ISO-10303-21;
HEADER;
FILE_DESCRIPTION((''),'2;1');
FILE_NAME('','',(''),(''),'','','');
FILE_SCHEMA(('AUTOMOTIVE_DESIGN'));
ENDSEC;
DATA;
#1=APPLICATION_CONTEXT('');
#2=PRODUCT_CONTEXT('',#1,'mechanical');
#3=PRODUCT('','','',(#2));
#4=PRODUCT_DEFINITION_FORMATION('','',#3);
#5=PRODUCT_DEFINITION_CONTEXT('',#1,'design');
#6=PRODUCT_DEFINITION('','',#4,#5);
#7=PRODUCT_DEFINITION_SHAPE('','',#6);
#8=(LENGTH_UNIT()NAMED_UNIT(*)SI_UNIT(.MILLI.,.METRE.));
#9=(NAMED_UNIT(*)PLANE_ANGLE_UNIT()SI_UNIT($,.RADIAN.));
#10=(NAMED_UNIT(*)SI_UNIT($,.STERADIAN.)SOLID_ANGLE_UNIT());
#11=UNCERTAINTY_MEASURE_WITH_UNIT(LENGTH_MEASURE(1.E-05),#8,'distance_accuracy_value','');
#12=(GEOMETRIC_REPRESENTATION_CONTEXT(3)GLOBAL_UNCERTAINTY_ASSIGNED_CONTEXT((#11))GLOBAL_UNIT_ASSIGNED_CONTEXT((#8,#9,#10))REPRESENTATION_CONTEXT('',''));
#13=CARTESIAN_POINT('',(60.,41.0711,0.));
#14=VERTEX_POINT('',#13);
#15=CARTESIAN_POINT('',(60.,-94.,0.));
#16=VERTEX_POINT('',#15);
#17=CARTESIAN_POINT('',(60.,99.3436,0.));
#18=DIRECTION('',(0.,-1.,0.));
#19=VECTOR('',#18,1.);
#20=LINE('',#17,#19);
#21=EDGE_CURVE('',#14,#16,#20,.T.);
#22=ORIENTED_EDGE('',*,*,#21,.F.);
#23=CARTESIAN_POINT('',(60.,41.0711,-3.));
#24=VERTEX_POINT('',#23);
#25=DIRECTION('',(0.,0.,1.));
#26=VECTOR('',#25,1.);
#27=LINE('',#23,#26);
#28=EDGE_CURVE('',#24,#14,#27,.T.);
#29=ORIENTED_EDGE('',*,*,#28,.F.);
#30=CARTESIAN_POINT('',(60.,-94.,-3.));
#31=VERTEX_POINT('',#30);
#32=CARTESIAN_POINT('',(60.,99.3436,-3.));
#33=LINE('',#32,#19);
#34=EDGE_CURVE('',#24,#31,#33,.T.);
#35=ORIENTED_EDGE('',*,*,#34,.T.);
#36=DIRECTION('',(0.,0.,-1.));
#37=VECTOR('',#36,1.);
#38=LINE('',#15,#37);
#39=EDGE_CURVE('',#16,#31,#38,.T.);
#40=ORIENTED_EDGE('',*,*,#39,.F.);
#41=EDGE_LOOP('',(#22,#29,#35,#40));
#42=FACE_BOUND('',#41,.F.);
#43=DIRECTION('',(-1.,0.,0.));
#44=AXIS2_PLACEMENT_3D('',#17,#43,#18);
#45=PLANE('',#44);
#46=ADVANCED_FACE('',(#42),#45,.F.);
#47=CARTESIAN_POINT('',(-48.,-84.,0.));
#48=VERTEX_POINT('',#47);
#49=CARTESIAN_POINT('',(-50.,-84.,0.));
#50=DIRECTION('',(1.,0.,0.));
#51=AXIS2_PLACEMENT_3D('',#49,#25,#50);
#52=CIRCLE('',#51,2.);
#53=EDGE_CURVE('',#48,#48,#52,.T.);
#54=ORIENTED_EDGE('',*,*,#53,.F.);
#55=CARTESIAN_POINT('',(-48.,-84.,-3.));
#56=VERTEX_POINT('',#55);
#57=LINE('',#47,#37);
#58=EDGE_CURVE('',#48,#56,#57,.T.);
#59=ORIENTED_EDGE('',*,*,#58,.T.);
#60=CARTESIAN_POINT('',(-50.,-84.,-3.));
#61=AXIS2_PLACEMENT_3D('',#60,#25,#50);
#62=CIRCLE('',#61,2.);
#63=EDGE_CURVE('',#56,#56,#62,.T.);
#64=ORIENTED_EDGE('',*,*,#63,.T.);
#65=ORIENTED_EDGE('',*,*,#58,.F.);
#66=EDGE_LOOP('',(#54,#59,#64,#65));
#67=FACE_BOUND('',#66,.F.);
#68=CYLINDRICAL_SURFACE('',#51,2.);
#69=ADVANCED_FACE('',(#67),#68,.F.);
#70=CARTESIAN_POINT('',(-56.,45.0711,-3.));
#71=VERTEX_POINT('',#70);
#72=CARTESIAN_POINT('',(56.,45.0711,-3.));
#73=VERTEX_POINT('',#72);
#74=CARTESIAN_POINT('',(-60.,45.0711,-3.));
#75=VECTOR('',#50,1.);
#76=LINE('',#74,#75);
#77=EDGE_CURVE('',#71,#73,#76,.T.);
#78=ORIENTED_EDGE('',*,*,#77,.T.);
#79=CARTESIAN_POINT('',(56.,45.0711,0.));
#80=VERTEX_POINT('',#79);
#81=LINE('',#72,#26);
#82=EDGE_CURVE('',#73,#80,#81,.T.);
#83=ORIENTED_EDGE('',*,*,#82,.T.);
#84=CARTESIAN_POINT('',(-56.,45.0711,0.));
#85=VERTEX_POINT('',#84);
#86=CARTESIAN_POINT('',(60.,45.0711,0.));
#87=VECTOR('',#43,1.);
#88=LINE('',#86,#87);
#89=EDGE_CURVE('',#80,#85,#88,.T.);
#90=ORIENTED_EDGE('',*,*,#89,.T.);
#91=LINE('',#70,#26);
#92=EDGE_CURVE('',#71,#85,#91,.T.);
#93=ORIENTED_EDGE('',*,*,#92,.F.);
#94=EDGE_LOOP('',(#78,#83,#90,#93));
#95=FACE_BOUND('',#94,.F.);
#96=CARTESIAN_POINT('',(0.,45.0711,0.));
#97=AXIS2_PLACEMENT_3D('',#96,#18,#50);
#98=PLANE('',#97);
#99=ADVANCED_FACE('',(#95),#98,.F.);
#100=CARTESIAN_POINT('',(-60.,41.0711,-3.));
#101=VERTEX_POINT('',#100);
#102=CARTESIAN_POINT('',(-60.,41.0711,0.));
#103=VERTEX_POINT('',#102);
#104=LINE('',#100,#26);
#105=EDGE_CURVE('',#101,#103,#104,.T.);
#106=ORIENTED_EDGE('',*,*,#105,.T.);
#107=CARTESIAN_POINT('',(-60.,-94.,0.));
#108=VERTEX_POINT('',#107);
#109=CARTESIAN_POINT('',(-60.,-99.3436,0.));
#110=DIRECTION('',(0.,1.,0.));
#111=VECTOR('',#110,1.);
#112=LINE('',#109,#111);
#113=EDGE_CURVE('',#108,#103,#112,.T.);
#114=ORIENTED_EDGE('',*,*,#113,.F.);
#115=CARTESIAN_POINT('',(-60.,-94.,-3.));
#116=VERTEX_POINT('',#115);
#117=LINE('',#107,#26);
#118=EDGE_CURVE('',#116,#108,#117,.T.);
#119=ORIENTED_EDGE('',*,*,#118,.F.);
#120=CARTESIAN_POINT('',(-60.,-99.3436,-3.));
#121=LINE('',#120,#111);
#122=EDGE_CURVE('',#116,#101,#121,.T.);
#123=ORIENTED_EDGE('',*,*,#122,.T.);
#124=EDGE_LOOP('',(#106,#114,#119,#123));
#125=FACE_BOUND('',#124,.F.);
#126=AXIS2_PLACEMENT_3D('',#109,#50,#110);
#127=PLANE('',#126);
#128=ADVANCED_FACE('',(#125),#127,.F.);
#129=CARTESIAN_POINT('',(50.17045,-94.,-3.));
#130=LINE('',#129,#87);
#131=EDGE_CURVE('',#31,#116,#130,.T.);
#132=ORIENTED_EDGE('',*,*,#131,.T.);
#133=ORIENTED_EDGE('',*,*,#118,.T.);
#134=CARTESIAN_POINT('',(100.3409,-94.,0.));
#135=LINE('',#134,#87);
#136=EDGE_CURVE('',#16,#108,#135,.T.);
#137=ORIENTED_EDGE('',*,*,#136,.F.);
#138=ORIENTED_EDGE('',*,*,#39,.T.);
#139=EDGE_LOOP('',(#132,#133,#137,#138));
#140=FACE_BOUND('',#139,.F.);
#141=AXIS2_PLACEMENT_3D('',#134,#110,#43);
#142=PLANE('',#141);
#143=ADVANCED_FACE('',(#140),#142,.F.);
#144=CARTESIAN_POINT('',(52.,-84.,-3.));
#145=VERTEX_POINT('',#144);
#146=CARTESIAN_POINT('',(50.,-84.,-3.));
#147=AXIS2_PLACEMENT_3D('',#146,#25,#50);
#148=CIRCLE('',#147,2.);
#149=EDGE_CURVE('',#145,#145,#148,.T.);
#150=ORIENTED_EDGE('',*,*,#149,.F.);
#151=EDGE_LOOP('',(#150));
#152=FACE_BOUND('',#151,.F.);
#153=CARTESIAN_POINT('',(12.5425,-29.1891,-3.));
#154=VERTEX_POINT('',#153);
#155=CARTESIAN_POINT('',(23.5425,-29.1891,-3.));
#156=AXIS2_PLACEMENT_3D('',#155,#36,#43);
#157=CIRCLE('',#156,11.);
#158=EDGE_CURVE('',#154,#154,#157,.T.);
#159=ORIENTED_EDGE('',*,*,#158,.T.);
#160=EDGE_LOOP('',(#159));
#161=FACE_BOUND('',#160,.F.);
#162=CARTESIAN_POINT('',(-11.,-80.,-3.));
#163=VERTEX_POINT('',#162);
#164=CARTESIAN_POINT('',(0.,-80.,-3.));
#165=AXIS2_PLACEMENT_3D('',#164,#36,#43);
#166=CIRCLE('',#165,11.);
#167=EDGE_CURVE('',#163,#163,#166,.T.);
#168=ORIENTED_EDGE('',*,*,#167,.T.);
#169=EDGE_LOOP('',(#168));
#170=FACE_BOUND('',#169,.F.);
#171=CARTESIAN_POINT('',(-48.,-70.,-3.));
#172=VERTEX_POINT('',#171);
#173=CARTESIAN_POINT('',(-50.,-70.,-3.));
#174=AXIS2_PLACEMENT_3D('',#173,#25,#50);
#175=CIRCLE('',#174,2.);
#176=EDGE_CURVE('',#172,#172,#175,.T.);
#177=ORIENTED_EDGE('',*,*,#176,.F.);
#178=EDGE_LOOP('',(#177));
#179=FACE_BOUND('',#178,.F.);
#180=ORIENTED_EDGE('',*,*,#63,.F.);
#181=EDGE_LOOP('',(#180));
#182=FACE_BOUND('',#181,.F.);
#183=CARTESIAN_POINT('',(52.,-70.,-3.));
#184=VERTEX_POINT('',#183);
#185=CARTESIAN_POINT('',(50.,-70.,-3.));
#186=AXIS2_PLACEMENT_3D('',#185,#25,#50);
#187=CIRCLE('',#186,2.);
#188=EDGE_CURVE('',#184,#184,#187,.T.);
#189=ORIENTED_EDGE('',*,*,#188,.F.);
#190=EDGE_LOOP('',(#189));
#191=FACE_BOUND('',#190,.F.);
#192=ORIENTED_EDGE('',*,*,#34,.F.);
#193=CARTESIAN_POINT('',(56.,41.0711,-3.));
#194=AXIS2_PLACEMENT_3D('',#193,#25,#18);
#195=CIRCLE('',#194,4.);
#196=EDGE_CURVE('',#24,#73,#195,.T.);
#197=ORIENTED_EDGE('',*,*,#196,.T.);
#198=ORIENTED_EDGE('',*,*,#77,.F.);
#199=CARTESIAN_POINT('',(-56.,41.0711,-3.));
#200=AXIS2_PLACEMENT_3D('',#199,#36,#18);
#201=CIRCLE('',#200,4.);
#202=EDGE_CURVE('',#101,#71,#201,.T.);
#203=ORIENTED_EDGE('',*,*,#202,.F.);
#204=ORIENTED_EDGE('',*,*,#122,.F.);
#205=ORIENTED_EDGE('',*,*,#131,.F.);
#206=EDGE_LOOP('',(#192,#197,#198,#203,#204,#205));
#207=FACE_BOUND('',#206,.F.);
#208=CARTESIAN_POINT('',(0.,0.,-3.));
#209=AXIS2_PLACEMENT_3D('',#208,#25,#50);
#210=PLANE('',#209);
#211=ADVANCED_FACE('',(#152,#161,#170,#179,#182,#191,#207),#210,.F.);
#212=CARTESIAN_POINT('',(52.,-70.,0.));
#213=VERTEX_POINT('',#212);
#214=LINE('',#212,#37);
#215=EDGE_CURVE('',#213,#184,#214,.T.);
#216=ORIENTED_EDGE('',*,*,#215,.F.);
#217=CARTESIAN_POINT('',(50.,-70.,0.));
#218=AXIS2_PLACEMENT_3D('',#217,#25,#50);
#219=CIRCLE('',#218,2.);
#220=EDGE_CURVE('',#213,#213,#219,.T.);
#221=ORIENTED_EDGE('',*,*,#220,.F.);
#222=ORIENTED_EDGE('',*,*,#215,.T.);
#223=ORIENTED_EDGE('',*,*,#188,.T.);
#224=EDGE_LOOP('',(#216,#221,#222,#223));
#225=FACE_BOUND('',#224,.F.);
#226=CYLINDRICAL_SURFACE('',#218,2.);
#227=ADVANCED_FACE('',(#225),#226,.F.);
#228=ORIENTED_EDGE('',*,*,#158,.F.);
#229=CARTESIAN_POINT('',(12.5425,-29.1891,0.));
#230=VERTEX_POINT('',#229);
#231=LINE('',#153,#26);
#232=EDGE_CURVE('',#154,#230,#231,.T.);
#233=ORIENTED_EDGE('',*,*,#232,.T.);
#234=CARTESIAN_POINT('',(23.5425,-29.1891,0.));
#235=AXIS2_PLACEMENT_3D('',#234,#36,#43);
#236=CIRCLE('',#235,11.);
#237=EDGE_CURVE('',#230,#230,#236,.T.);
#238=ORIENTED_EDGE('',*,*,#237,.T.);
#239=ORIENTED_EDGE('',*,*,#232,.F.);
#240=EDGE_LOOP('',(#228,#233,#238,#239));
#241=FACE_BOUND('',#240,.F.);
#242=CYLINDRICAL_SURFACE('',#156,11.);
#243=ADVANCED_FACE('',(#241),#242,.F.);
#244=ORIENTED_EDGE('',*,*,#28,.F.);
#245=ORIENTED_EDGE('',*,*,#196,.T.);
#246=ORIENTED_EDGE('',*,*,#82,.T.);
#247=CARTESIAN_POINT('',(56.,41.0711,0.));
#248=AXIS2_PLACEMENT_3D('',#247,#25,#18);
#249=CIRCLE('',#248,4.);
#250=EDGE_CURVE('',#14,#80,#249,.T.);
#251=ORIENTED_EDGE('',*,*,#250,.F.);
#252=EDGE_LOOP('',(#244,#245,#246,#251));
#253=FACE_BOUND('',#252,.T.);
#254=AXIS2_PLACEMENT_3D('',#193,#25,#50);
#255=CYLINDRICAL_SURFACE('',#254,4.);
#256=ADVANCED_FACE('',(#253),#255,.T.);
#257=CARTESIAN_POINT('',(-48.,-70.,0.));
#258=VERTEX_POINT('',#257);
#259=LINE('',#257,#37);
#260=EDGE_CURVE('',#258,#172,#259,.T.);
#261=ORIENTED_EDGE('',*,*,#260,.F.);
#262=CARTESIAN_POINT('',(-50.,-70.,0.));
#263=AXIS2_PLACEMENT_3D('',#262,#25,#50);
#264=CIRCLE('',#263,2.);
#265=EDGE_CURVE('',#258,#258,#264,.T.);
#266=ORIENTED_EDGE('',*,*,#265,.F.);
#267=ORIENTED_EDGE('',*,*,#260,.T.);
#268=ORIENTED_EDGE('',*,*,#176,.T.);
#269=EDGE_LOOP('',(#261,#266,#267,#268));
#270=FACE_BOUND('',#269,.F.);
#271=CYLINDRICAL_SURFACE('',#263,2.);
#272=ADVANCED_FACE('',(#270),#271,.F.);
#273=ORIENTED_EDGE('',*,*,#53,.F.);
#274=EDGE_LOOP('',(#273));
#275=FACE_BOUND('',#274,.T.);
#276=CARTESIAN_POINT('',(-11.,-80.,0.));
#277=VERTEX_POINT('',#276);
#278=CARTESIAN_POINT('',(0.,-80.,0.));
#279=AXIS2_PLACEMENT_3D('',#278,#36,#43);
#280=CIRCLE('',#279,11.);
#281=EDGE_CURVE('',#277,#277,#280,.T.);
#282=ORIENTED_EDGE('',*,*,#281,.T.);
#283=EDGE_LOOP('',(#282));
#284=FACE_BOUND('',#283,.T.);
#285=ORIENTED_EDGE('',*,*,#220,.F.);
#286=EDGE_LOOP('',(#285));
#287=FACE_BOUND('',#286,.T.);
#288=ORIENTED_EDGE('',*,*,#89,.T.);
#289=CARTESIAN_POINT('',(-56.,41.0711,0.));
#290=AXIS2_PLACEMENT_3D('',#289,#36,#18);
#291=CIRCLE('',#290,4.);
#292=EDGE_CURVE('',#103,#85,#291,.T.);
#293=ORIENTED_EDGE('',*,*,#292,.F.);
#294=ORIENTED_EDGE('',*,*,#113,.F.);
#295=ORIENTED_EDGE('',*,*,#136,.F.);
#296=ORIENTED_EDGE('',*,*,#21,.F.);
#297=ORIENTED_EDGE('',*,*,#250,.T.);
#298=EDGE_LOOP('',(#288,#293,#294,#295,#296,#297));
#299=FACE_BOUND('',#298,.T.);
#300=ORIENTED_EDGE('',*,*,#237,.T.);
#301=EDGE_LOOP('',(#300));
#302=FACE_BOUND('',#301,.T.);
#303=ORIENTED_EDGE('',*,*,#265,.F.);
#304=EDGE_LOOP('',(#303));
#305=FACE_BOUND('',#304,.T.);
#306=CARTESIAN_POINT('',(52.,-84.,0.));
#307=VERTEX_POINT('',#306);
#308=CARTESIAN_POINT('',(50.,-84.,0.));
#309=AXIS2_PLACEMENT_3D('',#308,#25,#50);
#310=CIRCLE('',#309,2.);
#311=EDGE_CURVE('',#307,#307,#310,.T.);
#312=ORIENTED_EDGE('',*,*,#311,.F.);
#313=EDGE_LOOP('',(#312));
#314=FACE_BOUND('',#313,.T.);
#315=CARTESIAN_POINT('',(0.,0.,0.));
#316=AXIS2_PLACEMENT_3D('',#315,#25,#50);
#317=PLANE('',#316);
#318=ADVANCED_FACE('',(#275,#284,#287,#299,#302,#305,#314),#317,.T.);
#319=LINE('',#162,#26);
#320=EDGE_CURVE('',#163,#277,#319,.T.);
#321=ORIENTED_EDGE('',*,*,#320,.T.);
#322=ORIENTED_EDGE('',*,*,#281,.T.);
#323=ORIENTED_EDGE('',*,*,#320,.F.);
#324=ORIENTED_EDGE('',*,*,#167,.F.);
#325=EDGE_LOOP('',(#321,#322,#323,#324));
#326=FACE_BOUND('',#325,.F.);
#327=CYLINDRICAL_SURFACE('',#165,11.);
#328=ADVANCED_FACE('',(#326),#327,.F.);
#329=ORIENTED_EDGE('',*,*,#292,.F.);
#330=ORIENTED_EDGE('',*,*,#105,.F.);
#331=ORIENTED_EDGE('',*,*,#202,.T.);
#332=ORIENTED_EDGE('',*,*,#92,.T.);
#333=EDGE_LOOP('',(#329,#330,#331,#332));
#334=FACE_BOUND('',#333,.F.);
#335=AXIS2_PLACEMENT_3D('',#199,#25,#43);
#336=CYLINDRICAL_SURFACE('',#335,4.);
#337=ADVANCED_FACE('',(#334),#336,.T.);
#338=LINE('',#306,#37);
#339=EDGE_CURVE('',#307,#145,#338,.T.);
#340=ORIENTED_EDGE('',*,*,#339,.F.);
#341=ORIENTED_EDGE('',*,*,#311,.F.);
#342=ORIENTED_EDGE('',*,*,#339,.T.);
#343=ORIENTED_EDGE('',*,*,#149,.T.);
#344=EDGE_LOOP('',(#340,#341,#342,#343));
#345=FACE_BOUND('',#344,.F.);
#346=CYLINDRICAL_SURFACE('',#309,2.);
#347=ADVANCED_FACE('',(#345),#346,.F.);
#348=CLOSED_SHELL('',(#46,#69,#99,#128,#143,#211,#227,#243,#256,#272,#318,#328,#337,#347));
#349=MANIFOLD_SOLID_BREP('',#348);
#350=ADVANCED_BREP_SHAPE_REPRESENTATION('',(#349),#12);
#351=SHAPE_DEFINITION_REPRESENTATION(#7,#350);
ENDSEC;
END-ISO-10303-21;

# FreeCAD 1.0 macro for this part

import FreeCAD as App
import Part
import Sketcher
Q = App.Units.Quantity


def edges_at(feature, points):
    """Names of the edges that pass closest to the given points."""
    edges = feature.Shape.Edges
    near = lambda p: min(range(len(edges)), key=lambda i: edges[i].distToShape(Part.Vertex(*p))[0])
    return sorted({f"Edge{near(p) + 1}" for p in points})


def add_polygon(sketch, points):
    """Adds a closed chain of lines whose ends are joined by coincident constraints."""
    first, n = sketch.GeometryCount, len(points)
    for a, b in zip(points, points[1:] + points[:1]):
        sketch.addGeometry(Part.LineSegment(App.Vector(*a, 0), App.Vector(*b, 0)), False)
    for i in range(n):
        sketch.addConstraint(Sketcher.Constraint("Coincident", first + i, 2, first + (i + 1) % n, 1))

doc = App.newDocument("Part")
params = doc.addObject("Spreadsheet::Sheet", "Params")
for row, (alias, value) in enumerate([
    ("sketch1_width", "120 mm"),
    ("pad1_length", "3 mm"),
    ("pocket1_length", "10 mm"),
    ("fillet_radius", "4 mm"),
    ("sketch3_diameter", "8 mm"),
    ("pocket2_length", "10 mm"),
    ("sketch4_width", "366.04 mm"),
    ("pocket3_length", "10 mm"),
    ("sketch5_diameter", "4 mm"),
    ("pocket4_length", "10 mm"),
    ("sketch6_diameter", "22 mm"),
    ("sketch6_diameter2", "8 mm"),
    ("pocket5_length", "10 mm"),
], start=1):
    params.set(f"A{row}", alias)
    params.set(f"B{row}", "=" + value)
    params.setAlias(f"B{row}", alias)

body = doc.addObject("PartDesign::Body", "Body")

sketch1 = body.newObject("Sketcher::SketchObject", "Sketch")
sketch1.AttachmentSupport = (doc.getObject("XY_Plane"), [""])
sketch1.MapMode = "FlatFace"
add_polygon(sketch1, [(-60, -99.3436), (60, -99.3436), (60, 99.3436), (-60, 99.3436)])
sketch1.addConstraint(Sketcher.Constraint("Horizontal", 0))
sketch1.addConstraint(Sketcher.Constraint("Vertical", 1))
sketch1.addConstraint(Sketcher.Constraint("Horizontal", 2))
sketch1.addConstraint(Sketcher.Constraint("Vertical", 3))
sketch1.addConstraint(Sketcher.Constraint("Symmetric", 0, 2, 2, 2, -1, 1))
sketch1.addConstraint(Sketcher.Constraint("DistanceX", 0, 1, 0, 2, Q("120 mm")))
sketch1.addConstraint(Sketcher.Constraint("DistanceY", 1, 1, 1, 2, Q("198.6872 mm")))
sketch1.setExpression("Constraints[9]", "Params.sketch1_width")
pad1 = body.newObject("PartDesign::Pad", "Pad")
pad1.Profile = sketch1
pad1.setExpression("Length", "Params.pad1_length")
pad1.Reversed = True

sketch2 = body.newObject("Sketcher::SketchObject", "Sketch001")
sketch2.AttachmentSupport = (doc.getObject("XY_Plane"), [""])
sketch2.MapMode = "FlatFace"
add_polygon(sketch2, [(-74.3824, 45.0711), (108.1656, 45.0711), (108.1656, 129.4154), (-74.3824, 129.4154)])
sketch2.addConstraint(Sketcher.Constraint("Horizontal", 0))
sketch2.addConstraint(Sketcher.Constraint("Vertical", 1))
sketch2.addConstraint(Sketcher.Constraint("Horizontal", 2))
sketch2.addConstraint(Sketcher.Constraint("Vertical", 3))
sketch2.addConstraint(Sketcher.Constraint("DistanceX", 0, 1, 0, 2, Q("182.548 mm")))
sketch2.addConstraint(Sketcher.Constraint("DistanceY", 1, 1, 1, 2, Q("84.3443 mm")))
sketch2.addConstraint(Sketcher.Constraint("DistanceY", -1, 1, 0, 2, Q("45.071 mm")))
sketch2.addConstraint(Sketcher.Constraint("DistanceX", -1, 1, 0, 2, Q("108.1656 mm")))
pocket1 = body.newObject("PartDesign::Pocket", "Pocket")
pocket1.Profile = sketch2
pocket1.setExpression("Length", "Params.pocket1_length")
doc.recompute()

fillet = body.newObject("PartDesign::Fillet", "Fillet")
fillet.Base = (pocket1, edges_at(pocket1, [
    (-60, 45.071, -1.5),
    (60, 45.071, -1.5),
    (-60, -99.344, -1.5),
    (60, -99.344, -1.5),
]))
fillet.setExpression("Radius", "Params.fillet_radius")

sketch3 = body.newObject("Sketcher::SketchObject", "Sketch002")
sketch3.AttachmentSupport = (doc.getObject("XY_Plane"), [""])
sketch3.MapMode = "FlatFace"
sketch3.addGeometry(Part.Circle(App.Vector(23.5425, -29.1891, 0), App.Vector(0, 0, 1), 4), False)
sketch3.addGeometry(Part.Circle(App.Vector(0, -80, 0), App.Vector(0, 0, 1), 4), False)
sketch3.addConstraint(Sketcher.Constraint("Equal", 0, 1))
sketch3.addConstraint(Sketcher.Constraint("PointOnObject", 1, 3, -2))
sketch3.addConstraint(Sketcher.Constraint("Diameter", 0, Q("8 mm")))
sketch3.addConstraint(Sketcher.Constraint("DistanceY", 1, 3, -1, 1, Q("80 mm")))
sketch3.addConstraint(Sketcher.Constraint("DistanceY", 0, 3, -1, 1, Q("29.189 mm")))
sketch3.addConstraint(Sketcher.Constraint("DistanceX", -1, 1, 0, 3, Q("23.5425 mm")))
sketch3.setExpression("Constraints[2]", "Params.sketch3_diameter")
pocket2 = body.newObject("PartDesign::Pocket", "Pocket001")
pocket2.Profile = sketch3
pocket2.setExpression("Length", "Params.pocket2_length")

sketch4 = body.newObject("Sketcher::SketchObject", "Sketch003")
sketch4.AttachmentSupport = (doc.getObject("XY_Plane"), [""])
sketch4.MapMode = "FlatFace"
add_polygon(sketch4, [(-265.6992, -94), (-265.6992, -158.784), (100.3409, -158.784), (100.3409, -94)])
sketch4.addConstraint(Sketcher.Constraint("Vertical", 0))
sketch4.addConstraint(Sketcher.Constraint("Horizontal", 1))
sketch4.addConstraint(Sketcher.Constraint("Vertical", 2))
sketch4.addConstraint(Sketcher.Constraint("Horizontal", 3))
sketch4.addConstraint(Sketcher.Constraint("DistanceY", 2, 2, -1, 1, Q("94 mm")))
sketch4.addConstraint(Sketcher.Constraint("DistanceX", 1, 1, 1, 2, Q("366.04 mm")))
sketch4.addConstraint(Sketcher.Constraint("DistanceY", 0, 2, 0, 1, Q("64.784 mm")))
sketch4.addConstraint(Sketcher.Constraint("DistanceX", -1, 1, 1, 2, Q("100.341 mm")))
sketch4.setExpression("Constraints[9]", "Params.sketch4_width")
pocket3 = body.newObject("PartDesign::Pocket", "Pocket002")
pocket3.Profile = sketch4
pocket3.setExpression("Length", "Params.pocket3_length")

sketch5 = body.newObject("Sketcher::SketchObject", "Sketch004")
sketch5.AttachmentSupport = (doc.getObject("XY_Plane"), [""])
sketch5.MapMode = "FlatFace"
sketch5.addGeometry(Part.Circle(App.Vector(-50, -84, 0), App.Vector(0, 0, 1), 2), False)
sketch5.addGeometry(Part.Circle(App.Vector(50, -84, 0), App.Vector(0, 0, 1), 2), False)
sketch5.addGeometry(Part.Circle(App.Vector(-50, -70, 0), App.Vector(0, 0, 1), 2), False)
sketch5.addGeometry(Part.Circle(App.Vector(50, -70, 0), App.Vector(0, 0, 1), 2), False)
sketch5.addConstraint(Sketcher.Constraint("Equal", 0, 1))
sketch5.addConstraint(Sketcher.Constraint("Equal", 1, 2))
sketch5.addConstraint(Sketcher.Constraint("Equal", 2, 3))
sketch5.addConstraint(Sketcher.Constraint("Symmetric", 0, 3, 1, 3, -2))
sketch5.addConstraint(Sketcher.Constraint("Symmetric", 2, 3, 3, 3, -2))
sketch5.addConstraint(Sketcher.Constraint("Vertical", 0, 3, 2, 3))
sketch5.addConstraint(Sketcher.Constraint("Diameter", 0, Q("4 mm")))
sketch5.addConstraint(Sketcher.Constraint("DistanceX", 0, 3, -1, 1, Q("50 mm")))
sketch5.addConstraint(Sketcher.Constraint("DistanceY", 0, 3, -1, 1, Q("84 mm")))
sketch5.addConstraint(Sketcher.Constraint("DistanceY", 2, 3, -1, 1, Q("70 mm")))
sketch5.setExpression("Constraints[6]", "Params.sketch5_diameter")
pocket4 = body.newObject("PartDesign::Pocket", "Pocket003")
pocket4.Profile = sketch5
pocket4.setExpression("Length", "Params.pocket4_length")

sketch6 = body.newObject("Sketcher::SketchObject", "Sketch005")
sketch6.AttachmentSupport = (doc.getObject("XY_Plane"), [""])
sketch6.MapMode = "FlatFace"
sketch6.AttachmentOffset = App.Placement(App.Vector(0, 0, -3), App.Rotation())
sketch6.addGeometry(Part.Circle(App.Vector(23.5425, -29.1891, 0), App.Vector(0, 0, 1), 11), False)
sketch6.addGeometry(Part.Circle(App.Vector(23.5425, -29.1891, 0), App.Vector(0, 0, 1), 4), False)
sketch6.addGeometry(Part.Circle(App.Vector(0, -80, 0), App.Vector(0, 0, 1), 11), False)
sketch6.addGeometry(Part.Circle(App.Vector(0, -80, 0), App.Vector(0, 0, 1), 4), False)
sketch6.addConstraint(Sketcher.Constraint("Coincident", 1, 3, 0, 3))
sketch6.addConstraint(Sketcher.Constraint("Coincident", 3, 3, 2, 3))
sketch6.addConstraint(Sketcher.Constraint("Equal", 0, 2))
sketch6.addConstraint(Sketcher.Constraint("Equal", 1, 3))
sketch6.addConstraint(Sketcher.Constraint("PointOnObject", 2, 3, -2))
sketch6.addConstraint(Sketcher.Constraint("Diameter", 0, Q("22 mm")))
sketch6.addConstraint(Sketcher.Constraint("Diameter", 1, Q("8 mm")))
sketch6.addConstraint(Sketcher.Constraint("DistanceY", 2, 3, -1, 1, Q("80 mm")))
sketch6.addConstraint(Sketcher.Constraint("DistanceY", 0, 3, -1, 1, Q("29.189 mm")))
sketch6.addConstraint(Sketcher.Constraint("DistanceX", -1, 1, 0, 3, Q("23.5425 mm")))
sketch6.setExpression("Constraints[5]", "Params.sketch6_diameter")
sketch6.setExpression("Constraints[6]", "Params.sketch6_diameter2")
pocket5 = body.newObject("PartDesign::Pocket", "Pocket004")
pocket5.Profile = sketch6
pocket5.setExpression("Length", "Params.pocket5_length")
pocket5.Reversed = True

doc.recompute()
